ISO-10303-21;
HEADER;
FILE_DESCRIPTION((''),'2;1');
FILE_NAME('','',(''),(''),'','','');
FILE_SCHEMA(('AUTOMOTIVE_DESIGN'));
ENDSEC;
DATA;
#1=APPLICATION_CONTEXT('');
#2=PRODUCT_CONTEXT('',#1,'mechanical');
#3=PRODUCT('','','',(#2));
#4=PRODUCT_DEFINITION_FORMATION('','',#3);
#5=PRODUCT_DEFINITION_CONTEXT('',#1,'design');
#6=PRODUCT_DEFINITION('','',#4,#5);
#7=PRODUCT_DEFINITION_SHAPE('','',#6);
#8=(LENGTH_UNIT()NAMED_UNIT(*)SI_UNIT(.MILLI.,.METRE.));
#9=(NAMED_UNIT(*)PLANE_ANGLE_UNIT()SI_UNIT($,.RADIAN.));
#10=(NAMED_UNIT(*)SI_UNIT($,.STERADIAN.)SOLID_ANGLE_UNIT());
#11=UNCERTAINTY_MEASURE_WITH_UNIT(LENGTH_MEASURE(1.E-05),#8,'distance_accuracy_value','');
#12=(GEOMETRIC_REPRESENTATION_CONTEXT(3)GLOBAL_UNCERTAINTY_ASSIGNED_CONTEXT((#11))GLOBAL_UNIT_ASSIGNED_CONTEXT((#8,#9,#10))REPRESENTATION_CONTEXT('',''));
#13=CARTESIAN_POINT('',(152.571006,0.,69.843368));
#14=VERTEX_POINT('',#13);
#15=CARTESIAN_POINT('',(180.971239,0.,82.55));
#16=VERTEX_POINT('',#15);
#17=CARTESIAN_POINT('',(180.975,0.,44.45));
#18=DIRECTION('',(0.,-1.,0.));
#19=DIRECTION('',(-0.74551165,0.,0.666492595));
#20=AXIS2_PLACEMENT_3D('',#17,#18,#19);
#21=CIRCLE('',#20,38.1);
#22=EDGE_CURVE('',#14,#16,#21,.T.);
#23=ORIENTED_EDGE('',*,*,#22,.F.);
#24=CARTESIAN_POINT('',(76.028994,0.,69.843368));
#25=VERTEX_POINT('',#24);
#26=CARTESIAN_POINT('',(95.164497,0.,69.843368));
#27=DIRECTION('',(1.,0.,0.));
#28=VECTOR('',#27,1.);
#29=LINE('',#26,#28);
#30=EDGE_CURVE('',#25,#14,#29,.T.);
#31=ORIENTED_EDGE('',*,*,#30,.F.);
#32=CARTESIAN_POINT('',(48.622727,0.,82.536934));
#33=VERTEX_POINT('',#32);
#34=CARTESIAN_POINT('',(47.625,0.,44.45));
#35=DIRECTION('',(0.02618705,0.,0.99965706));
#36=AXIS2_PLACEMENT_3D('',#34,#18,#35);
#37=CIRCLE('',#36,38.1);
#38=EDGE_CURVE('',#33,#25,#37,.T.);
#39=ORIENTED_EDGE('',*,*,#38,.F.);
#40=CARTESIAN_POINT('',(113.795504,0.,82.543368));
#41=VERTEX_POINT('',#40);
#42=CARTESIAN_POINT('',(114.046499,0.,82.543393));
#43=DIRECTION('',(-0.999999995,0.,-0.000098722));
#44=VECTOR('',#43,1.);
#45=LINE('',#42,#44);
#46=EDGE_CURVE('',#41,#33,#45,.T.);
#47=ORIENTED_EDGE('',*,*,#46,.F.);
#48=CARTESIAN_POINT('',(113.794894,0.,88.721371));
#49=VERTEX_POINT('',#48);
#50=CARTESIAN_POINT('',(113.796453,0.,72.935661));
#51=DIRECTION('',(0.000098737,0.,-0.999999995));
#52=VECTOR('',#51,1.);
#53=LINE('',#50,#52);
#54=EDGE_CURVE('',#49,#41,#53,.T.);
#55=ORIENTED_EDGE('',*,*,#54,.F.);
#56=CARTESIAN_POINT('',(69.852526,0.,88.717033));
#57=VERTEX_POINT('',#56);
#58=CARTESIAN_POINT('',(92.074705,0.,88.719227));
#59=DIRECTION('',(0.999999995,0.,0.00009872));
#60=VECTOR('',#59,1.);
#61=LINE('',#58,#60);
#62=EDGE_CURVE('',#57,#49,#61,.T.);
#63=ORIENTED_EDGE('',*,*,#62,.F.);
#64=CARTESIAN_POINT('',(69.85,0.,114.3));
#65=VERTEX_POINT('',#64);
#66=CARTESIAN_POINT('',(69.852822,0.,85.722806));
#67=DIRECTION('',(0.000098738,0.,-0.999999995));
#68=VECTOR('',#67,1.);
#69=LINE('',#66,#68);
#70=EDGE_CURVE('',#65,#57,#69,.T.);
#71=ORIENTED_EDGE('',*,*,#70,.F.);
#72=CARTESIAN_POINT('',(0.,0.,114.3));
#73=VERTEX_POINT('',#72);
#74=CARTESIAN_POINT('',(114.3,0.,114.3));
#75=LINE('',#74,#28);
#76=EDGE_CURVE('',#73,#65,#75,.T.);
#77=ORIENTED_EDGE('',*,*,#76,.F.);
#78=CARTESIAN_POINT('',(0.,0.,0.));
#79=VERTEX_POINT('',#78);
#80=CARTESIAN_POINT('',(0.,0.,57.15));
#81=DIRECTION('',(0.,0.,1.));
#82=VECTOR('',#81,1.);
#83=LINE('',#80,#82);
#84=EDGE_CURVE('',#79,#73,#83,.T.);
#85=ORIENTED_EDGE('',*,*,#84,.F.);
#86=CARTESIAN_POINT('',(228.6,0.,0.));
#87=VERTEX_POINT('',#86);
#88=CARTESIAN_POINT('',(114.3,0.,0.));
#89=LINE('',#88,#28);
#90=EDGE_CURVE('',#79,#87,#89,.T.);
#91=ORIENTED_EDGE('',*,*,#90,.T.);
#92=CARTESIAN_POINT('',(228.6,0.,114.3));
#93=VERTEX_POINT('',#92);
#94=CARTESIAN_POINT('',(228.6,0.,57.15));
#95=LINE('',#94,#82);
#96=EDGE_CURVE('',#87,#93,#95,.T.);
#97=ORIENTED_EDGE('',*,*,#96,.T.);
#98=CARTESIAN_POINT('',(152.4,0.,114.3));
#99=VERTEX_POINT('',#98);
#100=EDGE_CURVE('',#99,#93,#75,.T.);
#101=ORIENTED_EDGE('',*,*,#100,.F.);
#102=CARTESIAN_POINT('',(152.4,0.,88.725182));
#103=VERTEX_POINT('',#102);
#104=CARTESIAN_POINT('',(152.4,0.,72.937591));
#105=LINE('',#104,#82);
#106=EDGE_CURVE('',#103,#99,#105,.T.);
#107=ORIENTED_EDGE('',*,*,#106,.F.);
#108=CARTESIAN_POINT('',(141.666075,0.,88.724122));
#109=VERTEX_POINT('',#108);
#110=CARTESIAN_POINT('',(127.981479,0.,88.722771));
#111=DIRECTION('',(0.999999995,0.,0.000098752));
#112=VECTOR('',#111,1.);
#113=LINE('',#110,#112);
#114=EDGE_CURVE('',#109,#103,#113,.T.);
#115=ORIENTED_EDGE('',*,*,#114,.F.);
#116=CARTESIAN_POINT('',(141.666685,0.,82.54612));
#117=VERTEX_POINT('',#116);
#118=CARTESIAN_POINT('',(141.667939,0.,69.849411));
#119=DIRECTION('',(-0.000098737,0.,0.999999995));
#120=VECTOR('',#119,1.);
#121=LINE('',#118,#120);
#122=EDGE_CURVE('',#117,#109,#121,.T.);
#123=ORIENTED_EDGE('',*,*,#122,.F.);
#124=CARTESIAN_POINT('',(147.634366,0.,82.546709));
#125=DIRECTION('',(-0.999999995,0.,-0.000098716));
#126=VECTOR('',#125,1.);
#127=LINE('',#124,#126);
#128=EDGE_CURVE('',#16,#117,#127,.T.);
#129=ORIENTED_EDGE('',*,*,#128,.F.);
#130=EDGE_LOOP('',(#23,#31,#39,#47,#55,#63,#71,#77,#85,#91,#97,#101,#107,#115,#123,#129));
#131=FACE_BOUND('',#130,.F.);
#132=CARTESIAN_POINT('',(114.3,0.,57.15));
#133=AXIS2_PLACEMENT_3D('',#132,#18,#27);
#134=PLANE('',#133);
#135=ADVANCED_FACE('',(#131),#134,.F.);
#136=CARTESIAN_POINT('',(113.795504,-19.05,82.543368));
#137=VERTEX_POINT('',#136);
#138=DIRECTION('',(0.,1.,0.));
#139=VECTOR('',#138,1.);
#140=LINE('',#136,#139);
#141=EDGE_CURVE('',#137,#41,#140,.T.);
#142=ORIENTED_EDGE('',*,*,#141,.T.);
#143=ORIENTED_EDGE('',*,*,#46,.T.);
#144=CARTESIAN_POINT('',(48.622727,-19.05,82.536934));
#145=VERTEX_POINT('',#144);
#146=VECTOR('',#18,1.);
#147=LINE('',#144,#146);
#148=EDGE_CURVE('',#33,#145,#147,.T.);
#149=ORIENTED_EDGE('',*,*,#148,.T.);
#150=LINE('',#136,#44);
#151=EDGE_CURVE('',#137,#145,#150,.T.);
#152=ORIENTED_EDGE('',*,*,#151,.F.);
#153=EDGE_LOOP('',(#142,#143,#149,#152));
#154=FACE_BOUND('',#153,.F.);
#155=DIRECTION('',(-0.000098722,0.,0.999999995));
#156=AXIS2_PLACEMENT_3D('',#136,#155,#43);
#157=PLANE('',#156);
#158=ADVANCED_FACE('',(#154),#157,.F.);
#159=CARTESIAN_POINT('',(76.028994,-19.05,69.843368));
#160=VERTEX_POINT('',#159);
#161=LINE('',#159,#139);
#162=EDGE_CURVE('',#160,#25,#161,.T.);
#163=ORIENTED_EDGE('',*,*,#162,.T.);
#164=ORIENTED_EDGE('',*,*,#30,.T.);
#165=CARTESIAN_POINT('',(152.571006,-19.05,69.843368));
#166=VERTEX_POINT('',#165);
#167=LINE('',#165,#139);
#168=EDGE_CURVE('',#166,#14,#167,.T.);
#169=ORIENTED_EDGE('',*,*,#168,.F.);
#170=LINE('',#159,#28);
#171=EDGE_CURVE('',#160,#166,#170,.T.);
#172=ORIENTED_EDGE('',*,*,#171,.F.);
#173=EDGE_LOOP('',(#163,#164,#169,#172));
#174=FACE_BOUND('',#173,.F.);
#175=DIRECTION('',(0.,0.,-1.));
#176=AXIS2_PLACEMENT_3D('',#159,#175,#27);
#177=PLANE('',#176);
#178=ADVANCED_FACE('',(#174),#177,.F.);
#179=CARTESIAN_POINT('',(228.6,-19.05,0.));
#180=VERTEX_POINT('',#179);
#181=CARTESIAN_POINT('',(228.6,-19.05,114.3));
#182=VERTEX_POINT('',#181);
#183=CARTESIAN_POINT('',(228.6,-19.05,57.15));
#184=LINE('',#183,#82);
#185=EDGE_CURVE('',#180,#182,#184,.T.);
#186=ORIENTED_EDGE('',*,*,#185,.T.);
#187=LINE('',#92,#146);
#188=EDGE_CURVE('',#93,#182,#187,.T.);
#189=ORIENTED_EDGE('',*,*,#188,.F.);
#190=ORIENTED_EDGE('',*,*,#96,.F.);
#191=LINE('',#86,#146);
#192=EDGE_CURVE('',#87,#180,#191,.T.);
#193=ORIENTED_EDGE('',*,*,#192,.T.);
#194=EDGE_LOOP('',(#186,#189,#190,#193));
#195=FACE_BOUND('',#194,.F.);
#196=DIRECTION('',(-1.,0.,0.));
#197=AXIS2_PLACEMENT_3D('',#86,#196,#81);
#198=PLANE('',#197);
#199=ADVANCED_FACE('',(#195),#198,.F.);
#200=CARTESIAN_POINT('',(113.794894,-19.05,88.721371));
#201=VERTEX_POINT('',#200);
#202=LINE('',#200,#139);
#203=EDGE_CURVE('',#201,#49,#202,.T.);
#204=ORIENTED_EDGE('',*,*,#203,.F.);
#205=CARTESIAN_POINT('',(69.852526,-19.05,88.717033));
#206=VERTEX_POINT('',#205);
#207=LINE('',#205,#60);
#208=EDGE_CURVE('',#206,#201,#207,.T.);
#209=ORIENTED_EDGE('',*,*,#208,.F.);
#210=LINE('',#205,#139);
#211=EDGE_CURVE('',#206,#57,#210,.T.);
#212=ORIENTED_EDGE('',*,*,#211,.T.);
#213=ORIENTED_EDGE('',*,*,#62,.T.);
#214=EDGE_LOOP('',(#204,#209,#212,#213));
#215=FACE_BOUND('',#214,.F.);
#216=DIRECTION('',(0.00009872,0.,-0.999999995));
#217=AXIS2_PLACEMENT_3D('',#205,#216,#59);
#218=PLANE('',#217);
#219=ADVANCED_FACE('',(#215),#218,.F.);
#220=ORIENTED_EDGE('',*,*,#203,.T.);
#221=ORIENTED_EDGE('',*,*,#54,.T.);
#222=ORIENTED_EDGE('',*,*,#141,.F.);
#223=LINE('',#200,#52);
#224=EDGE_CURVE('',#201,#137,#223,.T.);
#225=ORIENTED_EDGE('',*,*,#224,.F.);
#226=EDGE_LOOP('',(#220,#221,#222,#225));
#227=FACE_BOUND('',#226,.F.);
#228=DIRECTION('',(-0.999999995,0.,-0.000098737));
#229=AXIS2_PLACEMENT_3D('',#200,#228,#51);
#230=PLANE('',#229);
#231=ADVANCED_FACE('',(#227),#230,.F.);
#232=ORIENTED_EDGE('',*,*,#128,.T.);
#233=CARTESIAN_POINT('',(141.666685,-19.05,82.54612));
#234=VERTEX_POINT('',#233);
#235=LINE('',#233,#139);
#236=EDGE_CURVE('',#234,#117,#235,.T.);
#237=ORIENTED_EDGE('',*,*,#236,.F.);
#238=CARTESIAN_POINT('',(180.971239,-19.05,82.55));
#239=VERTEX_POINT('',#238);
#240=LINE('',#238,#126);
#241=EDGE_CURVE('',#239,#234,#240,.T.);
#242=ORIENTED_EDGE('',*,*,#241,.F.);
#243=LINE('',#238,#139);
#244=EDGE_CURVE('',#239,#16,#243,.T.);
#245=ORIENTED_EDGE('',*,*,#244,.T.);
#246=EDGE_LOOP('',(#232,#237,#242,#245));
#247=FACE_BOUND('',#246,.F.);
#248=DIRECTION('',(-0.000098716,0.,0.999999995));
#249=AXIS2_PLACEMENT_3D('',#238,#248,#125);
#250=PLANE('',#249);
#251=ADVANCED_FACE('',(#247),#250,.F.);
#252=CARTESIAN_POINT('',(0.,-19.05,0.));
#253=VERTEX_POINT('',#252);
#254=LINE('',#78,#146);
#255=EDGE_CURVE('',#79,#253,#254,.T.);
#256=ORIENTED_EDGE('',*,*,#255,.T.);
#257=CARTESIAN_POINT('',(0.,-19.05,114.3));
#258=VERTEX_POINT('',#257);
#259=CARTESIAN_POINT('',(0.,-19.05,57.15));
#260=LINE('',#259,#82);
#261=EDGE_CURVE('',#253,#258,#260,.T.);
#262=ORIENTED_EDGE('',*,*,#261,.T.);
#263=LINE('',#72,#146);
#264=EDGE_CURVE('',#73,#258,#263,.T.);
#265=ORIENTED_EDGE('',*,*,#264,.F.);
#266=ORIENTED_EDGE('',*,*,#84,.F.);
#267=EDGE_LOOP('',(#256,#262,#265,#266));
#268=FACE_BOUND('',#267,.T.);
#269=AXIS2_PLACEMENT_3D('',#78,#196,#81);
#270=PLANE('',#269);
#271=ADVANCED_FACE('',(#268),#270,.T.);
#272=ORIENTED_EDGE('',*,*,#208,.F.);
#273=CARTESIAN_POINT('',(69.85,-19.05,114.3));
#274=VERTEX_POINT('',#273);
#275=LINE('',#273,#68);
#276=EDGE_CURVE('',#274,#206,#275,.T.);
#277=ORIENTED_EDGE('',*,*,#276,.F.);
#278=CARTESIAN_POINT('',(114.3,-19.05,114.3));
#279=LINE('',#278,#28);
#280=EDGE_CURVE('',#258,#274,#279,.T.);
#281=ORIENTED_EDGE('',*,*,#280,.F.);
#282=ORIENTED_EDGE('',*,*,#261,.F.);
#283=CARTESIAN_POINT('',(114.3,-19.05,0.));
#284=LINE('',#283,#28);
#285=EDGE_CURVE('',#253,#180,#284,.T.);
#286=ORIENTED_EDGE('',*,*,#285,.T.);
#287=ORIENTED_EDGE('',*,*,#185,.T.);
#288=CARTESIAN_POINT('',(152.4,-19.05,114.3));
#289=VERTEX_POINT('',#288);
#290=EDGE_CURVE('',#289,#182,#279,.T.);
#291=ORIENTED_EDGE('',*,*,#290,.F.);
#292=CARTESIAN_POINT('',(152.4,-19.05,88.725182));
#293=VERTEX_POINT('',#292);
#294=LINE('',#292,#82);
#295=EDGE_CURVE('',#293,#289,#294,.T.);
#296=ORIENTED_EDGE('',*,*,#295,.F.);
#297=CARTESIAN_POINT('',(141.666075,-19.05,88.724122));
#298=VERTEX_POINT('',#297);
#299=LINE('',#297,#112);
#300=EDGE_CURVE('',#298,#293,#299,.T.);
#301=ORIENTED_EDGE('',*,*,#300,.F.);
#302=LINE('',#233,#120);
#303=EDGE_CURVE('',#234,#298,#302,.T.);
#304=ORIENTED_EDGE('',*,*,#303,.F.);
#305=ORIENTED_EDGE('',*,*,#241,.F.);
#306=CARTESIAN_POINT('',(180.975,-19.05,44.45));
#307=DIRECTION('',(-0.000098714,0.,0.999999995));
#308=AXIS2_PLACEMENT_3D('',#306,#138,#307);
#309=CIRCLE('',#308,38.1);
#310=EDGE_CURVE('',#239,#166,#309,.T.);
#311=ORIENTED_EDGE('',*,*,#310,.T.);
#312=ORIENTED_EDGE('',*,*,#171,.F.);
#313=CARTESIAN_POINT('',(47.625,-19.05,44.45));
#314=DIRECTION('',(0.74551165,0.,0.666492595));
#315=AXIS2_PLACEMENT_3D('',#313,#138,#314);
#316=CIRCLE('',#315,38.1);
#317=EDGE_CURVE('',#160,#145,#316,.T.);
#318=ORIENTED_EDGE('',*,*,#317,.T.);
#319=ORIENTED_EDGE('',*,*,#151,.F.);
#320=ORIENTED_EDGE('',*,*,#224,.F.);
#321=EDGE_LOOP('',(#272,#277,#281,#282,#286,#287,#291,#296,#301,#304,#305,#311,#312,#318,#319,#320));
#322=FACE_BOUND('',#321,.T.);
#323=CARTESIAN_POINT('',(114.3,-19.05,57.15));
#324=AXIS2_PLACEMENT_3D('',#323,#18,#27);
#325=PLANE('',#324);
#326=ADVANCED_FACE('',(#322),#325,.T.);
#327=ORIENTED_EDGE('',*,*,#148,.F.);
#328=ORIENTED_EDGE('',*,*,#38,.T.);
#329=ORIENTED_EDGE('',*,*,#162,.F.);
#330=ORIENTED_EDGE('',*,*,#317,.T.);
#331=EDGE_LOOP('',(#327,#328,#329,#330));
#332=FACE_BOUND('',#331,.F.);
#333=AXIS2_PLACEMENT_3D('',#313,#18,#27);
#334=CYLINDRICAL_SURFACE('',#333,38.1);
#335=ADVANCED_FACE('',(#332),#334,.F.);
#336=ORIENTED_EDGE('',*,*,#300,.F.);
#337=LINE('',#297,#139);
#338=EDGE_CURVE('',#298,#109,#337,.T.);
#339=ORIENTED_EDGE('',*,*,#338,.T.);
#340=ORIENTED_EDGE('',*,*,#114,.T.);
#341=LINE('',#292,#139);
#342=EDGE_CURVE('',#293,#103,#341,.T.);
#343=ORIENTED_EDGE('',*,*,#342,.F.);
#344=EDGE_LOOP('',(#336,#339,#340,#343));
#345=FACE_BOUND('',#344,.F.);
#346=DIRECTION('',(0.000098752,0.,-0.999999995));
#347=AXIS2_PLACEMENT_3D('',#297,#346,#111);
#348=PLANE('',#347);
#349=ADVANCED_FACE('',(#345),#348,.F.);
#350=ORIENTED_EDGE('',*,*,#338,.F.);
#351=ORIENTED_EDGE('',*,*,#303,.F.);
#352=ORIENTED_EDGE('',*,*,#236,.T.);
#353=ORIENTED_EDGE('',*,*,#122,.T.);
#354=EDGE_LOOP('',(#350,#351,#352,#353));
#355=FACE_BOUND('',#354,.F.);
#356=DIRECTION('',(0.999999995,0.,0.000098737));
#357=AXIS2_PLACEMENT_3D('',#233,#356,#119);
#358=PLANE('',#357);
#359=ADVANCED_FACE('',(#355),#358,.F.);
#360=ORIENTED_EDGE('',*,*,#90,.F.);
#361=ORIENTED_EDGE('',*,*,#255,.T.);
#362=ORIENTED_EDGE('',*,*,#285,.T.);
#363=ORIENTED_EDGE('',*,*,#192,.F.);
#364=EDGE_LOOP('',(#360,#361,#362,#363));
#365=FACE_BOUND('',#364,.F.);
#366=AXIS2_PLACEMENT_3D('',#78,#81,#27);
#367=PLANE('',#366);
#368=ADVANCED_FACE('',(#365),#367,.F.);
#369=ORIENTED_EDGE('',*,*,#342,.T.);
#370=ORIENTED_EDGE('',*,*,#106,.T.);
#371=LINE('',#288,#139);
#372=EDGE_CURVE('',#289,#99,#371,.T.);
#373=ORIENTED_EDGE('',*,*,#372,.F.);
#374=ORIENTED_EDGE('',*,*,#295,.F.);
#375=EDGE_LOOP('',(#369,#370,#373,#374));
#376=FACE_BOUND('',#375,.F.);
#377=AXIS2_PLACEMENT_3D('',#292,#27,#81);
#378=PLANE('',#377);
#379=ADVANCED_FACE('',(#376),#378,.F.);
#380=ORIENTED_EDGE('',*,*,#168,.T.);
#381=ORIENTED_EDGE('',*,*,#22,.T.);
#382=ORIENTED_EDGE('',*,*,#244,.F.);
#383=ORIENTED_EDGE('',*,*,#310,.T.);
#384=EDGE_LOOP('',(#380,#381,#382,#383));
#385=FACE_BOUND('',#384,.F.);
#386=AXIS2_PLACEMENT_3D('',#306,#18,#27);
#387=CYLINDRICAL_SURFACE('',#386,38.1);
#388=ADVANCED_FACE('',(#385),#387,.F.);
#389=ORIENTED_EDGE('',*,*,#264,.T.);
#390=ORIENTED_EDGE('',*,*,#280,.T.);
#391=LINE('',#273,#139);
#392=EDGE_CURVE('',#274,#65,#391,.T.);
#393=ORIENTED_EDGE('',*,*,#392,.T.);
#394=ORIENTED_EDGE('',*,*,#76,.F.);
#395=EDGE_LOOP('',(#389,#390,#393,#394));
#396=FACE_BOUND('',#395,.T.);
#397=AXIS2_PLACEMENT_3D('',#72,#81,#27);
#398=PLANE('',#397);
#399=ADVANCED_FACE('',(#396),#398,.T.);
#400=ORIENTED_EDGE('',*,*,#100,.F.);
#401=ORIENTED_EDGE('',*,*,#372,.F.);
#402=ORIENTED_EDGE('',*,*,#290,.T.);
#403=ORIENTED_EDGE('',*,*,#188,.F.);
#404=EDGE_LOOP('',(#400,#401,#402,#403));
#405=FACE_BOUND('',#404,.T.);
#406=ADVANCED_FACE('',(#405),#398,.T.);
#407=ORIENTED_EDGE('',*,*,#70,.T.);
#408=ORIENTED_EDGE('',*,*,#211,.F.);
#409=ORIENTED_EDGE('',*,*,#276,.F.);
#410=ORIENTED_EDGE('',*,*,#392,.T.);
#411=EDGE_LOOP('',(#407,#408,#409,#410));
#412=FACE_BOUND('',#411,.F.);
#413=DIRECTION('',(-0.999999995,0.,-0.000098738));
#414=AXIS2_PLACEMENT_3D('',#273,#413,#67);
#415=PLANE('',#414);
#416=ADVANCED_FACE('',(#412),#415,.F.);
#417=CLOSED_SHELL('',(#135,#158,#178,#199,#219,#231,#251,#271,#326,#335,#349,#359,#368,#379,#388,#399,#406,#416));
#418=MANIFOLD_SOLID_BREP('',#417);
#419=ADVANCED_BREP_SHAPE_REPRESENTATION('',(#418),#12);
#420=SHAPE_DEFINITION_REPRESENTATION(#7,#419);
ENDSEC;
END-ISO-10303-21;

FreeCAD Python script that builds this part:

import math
import FreeCAD as App
import Part
import Sketcher

V = App.Vector
Q = App.Units.Quantity


def add_polygon(sketch, points):
    """Adds a closed chain of lines whose ends are joined by coincident constraints."""
    first, n = sketch.GeometryCount, len(points)
    for a, b in zip(points, points[1:] + points[:1]):
        sketch.addGeometry(Part.LineSegment(App.Vector(*a, 0), App.Vector(*b, 0)), False)
    for i in range(n):
        sketch.addConstraint(Sketcher.Constraint("Coincident", first + i, 2, first + (i + 1) % n, 1))

doc = App.newDocument("Part")
body = doc.addObject("PartDesign::Body", "Body")

# Sketch on XZ plane
sketch1 = body.newObject("Sketcher::SketchObject", "Sketch")
sketch1.AttachmentSupport = (doc.getObject("XZ_Plane"), [""])
sketch1.MapMode = "FlatFace"
add_polygon(sketch1, [(0, 114), (0, 0), (229, 0), (229, 114)])  # lines 0-3
sketch1.addConstraint([
    Sketcher.Constraint("Vertical", 0),
    Sketcher.Constraint("Horizontal", 1),
    Sketcher.Constraint("Vertical", 2),
    Sketcher.Constraint("Horizontal", 3),
    Sketcher.Constraint("Coincident", 0, 2, -1, 1),
    Sketcher.Constraint("DistanceX", 1, 1, 1, 2, Q("9 in")),
    Sketcher.Constraint("DistanceY", 0, 2, 0, 1, Q("4.5 in")),
])
pad1 = body.newObject("PartDesign::Pad", "Pad")
pad1.Profile = sketch1
pad1.Length = Q("0.75 in")

# Sketch on XZ plane
sketch2 = body.newObject("Sketcher::SketchObject", "Sketch001")
sketch2.AttachmentSupport = (doc.getObject("XZ_Plane"), [""])
sketch2.MapMode = "FlatFace"
sketch2.AttachmentOffset = App.Placement(V(0, 0, 0.75 * 25.4), App.Rotation())
sketch2.addGeometry([
    Part.Circle(V(48, 44, 0), V(0, 0, 1), 38),
    Part.Circle(V(181, 44, 0), V(0, 0, 1), 38),
], False)
sketch2.addConstraint([
    Sketcher.Constraint("Equal", 0, 1),
    Sketcher.Constraint("Horizontal", 0, 3, 1, 3),
    Sketcher.Constraint("Diameter", 0, Q("3 in")),
    Sketcher.Constraint("DistanceY", -1, 1, 0, 3, Q("1.75 in")),
    Sketcher.Constraint("DistanceX", 0, 3, 1, 3, Q("5.25 in")),
    Sketcher.Constraint("DistanceX", -1, 1, 0, 3, Q("1.875 in")),
])
pocket1 = body.newObject("PartDesign::Pocket", "Pocket")
pocket1.Profile = sketch2
pocket1.Length = Q("1 in")

# Sketch on XZ plane
sketch3 = body.newObject("Sketcher::SketchObject", "Sketch002")
sketch3.AttachmentSupport = (doc.getObject("XZ_Plane"), [""])
sketch3.MapMode = "FlatFace"
sketch3.AttachmentOffset = App.Placement(V(0, 0, 0.75 * 25.4), App.Rotation())
sketch3.addGeometry([
    Part.ArcOfCircle(Part.Circle(V(180.975002, 44.449996, 0), V(0, 0, 1), 38.100004), math.radians(90.005659), math.radians(138.203062)),  # 0
    Part.LineSegment(V(180.971239, 82.55, 0), V(141.666685, 82.54612, 0)),  # 1
    Part.LineSegment(V(141.666685, 82.54612, 0), V(141.666075, 88.724122, 0)),  # 2
    Part.LineSegment(V(141.666075, 88.724122, 0), V(152.4, 88.725182, 0)),  # 3
    Part.LineSegment(V(152.4, 88.725182, 0), V(152.4, 114.3, 0)),  # 4
    Part.LineSegment(V(152.4, 114.3, 0), V(69.85, 114.3, 0)),  # 5
    Part.LineSegment(V(69.85, 114.3, 0), V(69.852526, 88.717033, 0)),  # 6
    Part.LineSegment(V(69.852526, 88.717033, 0), V(113.794894, 88.721371, 0)),  # 7
    Part.LineSegment(V(113.794894, 88.721371, 0), V(113.795504, 82.543368, 0)),  # 8
    Part.LineSegment(V(113.795504, 82.543368, 0), V(48.622711, 82.536934, 0)),  # 9
    Part.ArcOfCircle(Part.Circle(V(47.625001, 44.45, 0), V(0, 0, 1), 38.099999), math.radians(41.796936), math.radians(88.499446)),  # 10
    Part.LineSegment(V(76.028994, 69.843368, 0), V(152.571006, 69.843368, 0)),  # 11
], False)
sketch3.addConstraint([
    Sketcher.Constraint("Coincident", 0, 1, 1, 1),
    Sketcher.Constraint("Coincident", 1, 2, 2, 1),
    Sketcher.Constraint("Coincident", 2, 2, 3, 1),
    Sketcher.Constraint("Coincident", 3, 2, 4, 1),
    Sketcher.Constraint("Coincident", 4, 2, 5, 1),
    Sketcher.Constraint("Coincident", 5, 2, 6, 1),
    Sketcher.Constraint("Coincident", 6, 2, 7, 1),
    Sketcher.Constraint("Coincident", 7, 2, 8, 1),
    Sketcher.Constraint("Coincident", 8, 2, 9, 1),
    Sketcher.Constraint("Coincident", 9, 2, 10, 2),
    Sketcher.Constraint("Coincident", 10, 1, 11, 1),
    Sketcher.Constraint("Coincident", 11, 2, 0, 2),
    Sketcher.Constraint("Vertical", 4),
    Sketcher.Constraint("Horizontal", 5),
    Sketcher.Constraint("Horizontal", 11),
    Sketcher.Constraint("Radius", 0, Q("1.5000002 in")),
    Sketcher.Constraint("Radius", 10, Q("1.5 in")),
    Sketcher.Constraint("DistanceX", -1, 1, 3, 2, Q("6 in")),
    Sketcher.Constraint("DistanceX", 5, 2, 5, 1, Q("3.25 in")),
    Sketcher.Constraint("DistanceY", -1, 1, 4, 2, Q("4.5 in")),
    Sketcher.Constraint("DistanceY", 10, 3, 0, 1, Q("1.5 in")),
    Sketcher.Constraint("DistanceY", 10, 1, 8, 2, Q("0.5 in")),
    Sketcher.Constraint("DistanceY", -1, 1, 0, 3, Q("1.7499998 in")),
    Sketcher.Constraint("DistanceX", 10, 3, 0, 3, Q("5.25 in")),
    Sketcher.Constraint("DistanceX", -1, 1, 0, 3, Q("7.1250001 in")),
    Sketcher.Constraint("DistanceY", 1, 2, 2, 2, 6.178002),
    Sketcher.Constraint("DistanceY", 9, 2, 6, 2, 6.180099),
    Sketcher.Constraint("DistanceX", 10, 1, 7, 2, 37.7659),
    Sketcher.Constraint("Distance", 7, 43.942368),
    Sketcher.Constraint("DistanceX", 11, 1, 11, 2, 76.542012),
    Sketcher.Constraint("DistanceY", 4, 1, 4, 2, 25.574818),
    Sketcher.Constraint("DistanceX", -1, 1, 0, 1, 180.971239),
    Sketcher.Constraint("DistanceY", -1, 1, 1, 2, 82.54612),
    Sketcher.Constraint("DistanceY", -1, 1, 7, 2, 88.721371),
    Sketcher.Constraint("DistanceX", -1, 1, 9, 2, 48.622711),
    Sketcher.Constraint("DistanceX", 2, 2, 1, 2, 0.00061),
    Sketcher.Constraint("DistanceX", 6, 2, 2, 2, 71.813549),
    Sketcher.Constraint("DistanceX", 7, 2, 8, 2, 0.00061),
])
pocket2 = body.newObject("PartDesign::Pocket", "Pocket001")
pocket2.Profile = sketch3
pocket2.Length = Q("1 in")

doc.recompute()
